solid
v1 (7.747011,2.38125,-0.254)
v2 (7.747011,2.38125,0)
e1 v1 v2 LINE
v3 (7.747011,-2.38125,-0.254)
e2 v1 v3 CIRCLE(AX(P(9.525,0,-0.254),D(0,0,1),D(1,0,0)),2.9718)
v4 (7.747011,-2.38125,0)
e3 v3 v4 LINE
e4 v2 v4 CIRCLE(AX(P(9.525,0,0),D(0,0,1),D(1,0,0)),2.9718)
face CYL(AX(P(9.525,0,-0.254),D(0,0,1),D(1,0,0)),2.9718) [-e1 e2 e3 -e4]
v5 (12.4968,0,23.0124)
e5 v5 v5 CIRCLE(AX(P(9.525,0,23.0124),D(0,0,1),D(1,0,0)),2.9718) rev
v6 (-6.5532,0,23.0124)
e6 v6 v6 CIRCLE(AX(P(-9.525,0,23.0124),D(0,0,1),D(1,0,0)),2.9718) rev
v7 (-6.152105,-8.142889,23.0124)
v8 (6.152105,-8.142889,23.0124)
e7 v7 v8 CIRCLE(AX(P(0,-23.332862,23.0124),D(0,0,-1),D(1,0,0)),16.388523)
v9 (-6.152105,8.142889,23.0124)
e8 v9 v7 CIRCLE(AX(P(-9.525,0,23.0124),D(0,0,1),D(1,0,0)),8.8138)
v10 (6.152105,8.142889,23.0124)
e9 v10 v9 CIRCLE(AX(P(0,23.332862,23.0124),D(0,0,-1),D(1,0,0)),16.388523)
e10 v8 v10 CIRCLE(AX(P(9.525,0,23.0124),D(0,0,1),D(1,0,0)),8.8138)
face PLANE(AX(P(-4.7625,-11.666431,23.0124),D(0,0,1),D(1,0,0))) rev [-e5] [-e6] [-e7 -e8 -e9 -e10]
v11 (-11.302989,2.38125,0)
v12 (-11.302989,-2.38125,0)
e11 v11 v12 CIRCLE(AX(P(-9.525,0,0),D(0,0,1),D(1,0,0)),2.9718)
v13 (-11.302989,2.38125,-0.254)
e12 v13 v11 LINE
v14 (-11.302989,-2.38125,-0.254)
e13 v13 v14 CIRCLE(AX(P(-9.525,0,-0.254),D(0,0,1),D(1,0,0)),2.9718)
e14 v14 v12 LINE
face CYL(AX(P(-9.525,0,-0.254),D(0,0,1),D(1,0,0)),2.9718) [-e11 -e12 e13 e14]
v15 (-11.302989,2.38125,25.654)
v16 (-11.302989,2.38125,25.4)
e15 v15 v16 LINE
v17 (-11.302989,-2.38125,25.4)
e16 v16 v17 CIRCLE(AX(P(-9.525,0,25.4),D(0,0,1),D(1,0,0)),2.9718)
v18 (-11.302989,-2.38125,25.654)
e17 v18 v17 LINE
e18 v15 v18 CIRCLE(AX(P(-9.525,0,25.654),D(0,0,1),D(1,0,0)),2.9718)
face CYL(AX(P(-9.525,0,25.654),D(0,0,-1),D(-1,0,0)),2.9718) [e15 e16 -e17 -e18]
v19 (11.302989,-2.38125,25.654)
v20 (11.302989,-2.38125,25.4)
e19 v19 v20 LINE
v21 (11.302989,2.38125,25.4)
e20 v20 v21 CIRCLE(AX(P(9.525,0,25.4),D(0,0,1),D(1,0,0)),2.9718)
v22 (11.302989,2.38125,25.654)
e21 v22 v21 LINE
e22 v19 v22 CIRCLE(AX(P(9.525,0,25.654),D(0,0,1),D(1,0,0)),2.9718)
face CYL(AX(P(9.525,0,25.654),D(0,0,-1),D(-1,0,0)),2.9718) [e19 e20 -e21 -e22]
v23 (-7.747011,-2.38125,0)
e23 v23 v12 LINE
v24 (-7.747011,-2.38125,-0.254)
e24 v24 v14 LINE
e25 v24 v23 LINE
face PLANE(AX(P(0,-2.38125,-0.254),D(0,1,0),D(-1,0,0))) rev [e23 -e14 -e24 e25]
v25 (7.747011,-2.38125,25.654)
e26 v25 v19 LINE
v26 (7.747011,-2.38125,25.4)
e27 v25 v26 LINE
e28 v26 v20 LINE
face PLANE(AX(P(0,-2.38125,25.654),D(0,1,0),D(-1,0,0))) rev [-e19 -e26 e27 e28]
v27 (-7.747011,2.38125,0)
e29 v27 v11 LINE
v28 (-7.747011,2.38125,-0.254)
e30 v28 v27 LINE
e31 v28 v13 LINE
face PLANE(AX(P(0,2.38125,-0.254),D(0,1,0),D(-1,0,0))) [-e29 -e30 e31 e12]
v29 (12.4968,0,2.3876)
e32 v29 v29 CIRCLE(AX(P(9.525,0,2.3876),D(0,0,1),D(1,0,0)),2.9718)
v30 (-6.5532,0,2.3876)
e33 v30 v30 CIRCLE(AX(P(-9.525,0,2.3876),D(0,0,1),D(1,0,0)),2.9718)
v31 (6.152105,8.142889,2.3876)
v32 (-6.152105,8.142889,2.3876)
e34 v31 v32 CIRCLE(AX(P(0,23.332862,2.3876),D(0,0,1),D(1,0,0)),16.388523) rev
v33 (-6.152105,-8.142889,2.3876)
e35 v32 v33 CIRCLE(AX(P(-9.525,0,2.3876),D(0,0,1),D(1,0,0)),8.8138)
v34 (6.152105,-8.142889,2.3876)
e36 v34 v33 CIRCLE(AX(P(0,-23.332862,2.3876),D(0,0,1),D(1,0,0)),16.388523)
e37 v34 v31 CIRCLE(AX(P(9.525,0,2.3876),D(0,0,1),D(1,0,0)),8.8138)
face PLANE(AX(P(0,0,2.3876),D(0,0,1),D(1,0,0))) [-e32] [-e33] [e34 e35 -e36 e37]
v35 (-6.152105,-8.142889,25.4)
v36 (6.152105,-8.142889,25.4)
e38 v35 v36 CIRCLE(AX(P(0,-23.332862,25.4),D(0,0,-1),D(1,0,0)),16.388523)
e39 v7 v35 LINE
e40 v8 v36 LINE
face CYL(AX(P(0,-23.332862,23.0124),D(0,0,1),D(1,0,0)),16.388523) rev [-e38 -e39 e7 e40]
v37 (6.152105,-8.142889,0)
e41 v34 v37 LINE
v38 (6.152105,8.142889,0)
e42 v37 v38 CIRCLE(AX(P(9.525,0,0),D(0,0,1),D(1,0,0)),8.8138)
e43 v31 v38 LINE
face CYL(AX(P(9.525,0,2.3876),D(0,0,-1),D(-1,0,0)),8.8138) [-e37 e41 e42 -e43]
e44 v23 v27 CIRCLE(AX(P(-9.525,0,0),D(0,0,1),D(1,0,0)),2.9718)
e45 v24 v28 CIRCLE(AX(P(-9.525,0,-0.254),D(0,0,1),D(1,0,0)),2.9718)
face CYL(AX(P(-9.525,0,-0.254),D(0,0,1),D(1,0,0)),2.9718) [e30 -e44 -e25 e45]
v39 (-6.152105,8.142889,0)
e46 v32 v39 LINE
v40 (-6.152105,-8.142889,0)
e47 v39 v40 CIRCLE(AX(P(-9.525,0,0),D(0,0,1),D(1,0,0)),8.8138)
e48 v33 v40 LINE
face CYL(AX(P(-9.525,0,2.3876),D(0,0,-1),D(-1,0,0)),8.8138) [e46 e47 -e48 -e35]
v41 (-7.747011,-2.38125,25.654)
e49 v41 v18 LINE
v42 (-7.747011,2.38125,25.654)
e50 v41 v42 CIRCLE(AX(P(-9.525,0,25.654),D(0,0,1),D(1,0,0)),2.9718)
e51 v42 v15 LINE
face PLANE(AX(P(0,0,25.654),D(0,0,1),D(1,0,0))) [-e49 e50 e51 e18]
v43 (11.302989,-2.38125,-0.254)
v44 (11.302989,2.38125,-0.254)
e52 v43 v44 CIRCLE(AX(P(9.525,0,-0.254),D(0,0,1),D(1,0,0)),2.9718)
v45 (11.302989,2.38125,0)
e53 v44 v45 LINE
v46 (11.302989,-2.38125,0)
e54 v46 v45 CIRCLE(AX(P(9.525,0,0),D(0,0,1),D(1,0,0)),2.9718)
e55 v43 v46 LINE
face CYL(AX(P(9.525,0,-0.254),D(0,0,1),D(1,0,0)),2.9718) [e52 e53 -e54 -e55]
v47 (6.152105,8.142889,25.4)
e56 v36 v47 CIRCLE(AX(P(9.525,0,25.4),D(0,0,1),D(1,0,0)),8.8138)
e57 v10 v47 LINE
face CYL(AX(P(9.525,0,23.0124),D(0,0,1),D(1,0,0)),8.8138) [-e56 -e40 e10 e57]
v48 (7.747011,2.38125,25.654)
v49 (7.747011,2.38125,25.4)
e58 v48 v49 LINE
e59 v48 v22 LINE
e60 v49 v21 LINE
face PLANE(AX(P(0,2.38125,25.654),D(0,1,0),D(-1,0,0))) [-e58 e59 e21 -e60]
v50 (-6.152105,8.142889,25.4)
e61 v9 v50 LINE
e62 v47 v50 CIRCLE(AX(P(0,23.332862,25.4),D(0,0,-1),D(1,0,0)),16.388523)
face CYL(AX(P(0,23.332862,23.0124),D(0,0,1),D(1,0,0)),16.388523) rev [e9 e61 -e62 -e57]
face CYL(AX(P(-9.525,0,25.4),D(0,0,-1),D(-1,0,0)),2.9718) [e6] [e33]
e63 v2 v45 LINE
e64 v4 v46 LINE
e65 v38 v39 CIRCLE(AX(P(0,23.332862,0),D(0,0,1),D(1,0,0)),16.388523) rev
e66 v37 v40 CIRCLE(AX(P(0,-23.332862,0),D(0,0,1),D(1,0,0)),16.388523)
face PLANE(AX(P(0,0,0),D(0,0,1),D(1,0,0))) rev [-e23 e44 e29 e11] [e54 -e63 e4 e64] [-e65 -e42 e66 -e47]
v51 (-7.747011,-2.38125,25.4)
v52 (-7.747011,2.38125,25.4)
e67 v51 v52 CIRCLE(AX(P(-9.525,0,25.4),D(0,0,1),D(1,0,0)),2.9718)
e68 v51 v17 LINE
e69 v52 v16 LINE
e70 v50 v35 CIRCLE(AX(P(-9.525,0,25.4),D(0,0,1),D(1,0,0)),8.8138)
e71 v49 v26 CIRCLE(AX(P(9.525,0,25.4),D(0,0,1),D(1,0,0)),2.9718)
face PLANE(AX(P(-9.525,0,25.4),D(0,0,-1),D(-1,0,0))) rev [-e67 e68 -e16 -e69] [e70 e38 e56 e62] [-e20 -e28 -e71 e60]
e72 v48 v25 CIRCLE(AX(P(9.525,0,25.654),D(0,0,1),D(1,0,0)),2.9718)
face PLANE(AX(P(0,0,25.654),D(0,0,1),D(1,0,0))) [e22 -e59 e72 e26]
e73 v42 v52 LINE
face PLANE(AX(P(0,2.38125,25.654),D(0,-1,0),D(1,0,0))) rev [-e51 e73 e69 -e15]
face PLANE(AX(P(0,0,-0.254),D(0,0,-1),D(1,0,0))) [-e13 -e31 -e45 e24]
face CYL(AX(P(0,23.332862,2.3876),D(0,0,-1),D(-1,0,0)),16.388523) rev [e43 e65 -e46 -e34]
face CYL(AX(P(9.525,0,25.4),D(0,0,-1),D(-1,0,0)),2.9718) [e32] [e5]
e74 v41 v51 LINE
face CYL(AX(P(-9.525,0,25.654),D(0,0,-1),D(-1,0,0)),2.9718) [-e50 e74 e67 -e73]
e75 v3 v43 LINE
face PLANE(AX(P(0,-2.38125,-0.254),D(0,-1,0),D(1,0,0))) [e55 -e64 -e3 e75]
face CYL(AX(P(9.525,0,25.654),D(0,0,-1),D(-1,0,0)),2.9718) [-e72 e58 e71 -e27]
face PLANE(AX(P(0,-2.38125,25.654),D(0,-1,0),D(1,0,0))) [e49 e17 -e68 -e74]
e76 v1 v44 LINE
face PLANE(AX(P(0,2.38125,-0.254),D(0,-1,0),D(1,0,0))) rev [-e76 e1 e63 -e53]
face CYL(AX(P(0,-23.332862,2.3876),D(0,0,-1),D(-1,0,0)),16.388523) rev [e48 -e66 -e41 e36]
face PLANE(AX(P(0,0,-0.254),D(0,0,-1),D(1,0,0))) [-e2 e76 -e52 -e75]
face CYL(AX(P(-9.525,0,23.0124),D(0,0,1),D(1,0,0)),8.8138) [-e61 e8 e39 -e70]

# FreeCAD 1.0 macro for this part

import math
import FreeCAD as App
import Part
import Sketcher
Q = App.Units.Quantity

doc = App.newDocument("Part")
body = doc.addObject("PartDesign::Body", "Body")

# Sketch on XY plane
sketch1 = body.newObject("Sketcher::SketchObject", "Sketch")
sketch1.AttachmentSupport = (doc.getObject("XY_Plane"), [""])
sketch1.MapMode = "FlatFace"
sketch1.addGeometry(Part.ArcOfCircle(Part.Circle(App.Vector(-9.525, 0, 0), App.Vector(0, 0, 1), 8.8138), math.radians(90), math.radians(292.5)), False)
sketch1.addGeometry(Part.ArcOfCircle(Part.Circle(App.Vector(0, -23.332862, 0), App.Vector(0, 0, 1), 16.388523), math.radians(67.951516), math.radians(112.048484)), False)
sketch1.addGeometry(Part.ArcOfCircle(Part.Circle(App.Vector(9.525, 0, 0), App.Vector(0, 0, 1), 8.8138), math.radians(-112.5), math.radians(0)), False)
sketch1.addGeometry(Part.ArcOfCircle(Part.Circle(App.Vector(9.525, 0, 0), App.Vector(0, 0, 1), 8.8138), math.radians(0), math.radians(90)), False)
sketch1.addGeometry(Part.ArcOfCircle(Part.Circle(App.Vector(9.525, 0, 0), App.Vector(0, 0, 1), 8.8138), math.radians(90), math.radians(112.5)), False)
sketch1.addGeometry(Part.ArcOfCircle(Part.Circle(App.Vector(0, 23.332862, 0), App.Vector(0, 0, 1), 16.388523), math.radians(-90), math.radians(-67.951516)), False)
sketch1.addGeometry(Part.ArcOfCircle(Part.Circle(App.Vector(0, 23.332862, 0), App.Vector(0, 0, 1), 16.388523), math.radians(-112.048484), math.radians(-90)), False)
sketch1.addGeometry(Part.ArcOfCircle(Part.Circle(App.Vector(-9.525, 0, 0), App.Vector(0, 0, 1), 8.8138), math.radians(67.5), math.radians(90)), False)
sketch1.addGeometry(Part.Circle(App.Vector(-9.525, 0, 0), App.Vector(0, 0, 1), 2.9718), False)
sketch1.addGeometry(Part.Circle(App.Vector(9.525, 0, 0), App.Vector(0, 0, 1), 2.9718), False)
sketch1.addConstraint(Sketcher.Constraint("Coincident", 0, 2, 1, 2))
sketch1.addConstraint(Sketcher.Constraint("Coincident", 1, 1, 2, 1))
sketch1.addConstraint(Sketcher.Constraint("Tangent", 2, 2, 3, 1))
sketch1.addConstraint(Sketcher.Constraint("Tangent", 3, 2, 4, 1))
sketch1.addConstraint(Sketcher.Constraint("Coincident", 4, 2, 5, 2))
sketch1.addConstraint(Sketcher.Constraint("Tangent", 5, 1, 6, 2))
sketch1.addConstraint(Sketcher.Constraint("Coincident", 6, 1, 7, 1))
sketch1.addConstraint(Sketcher.Constraint("Tangent", 7, 2, 0, 1))
sketch1.addConstraint(Sketcher.Constraint("Coincident", 4, 3, 2, 3))
sketch1.addConstraint(Sketcher.Constraint("Coincident", 8, 3, 0, 3))
sketch1.addConstraint(Sketcher.Constraint("Coincident", 9, 3, 2, 3))
sketch1.addConstraint(Sketcher.Constraint("Equal", 0, 2))
sketch1.addConstraint(Sketcher.Constraint("Equal", 1, 5))
sketch1.addConstraint(Sketcher.Constraint("Equal", 5, 6))
sketch1.addConstraint(Sketcher.Constraint("Equal", 4, 7))
sketch1.addConstraint(Sketcher.Constraint("Equal", 8, 9))
sketch1.addConstraint(Sketcher.Constraint("Symmetric", 0, 3, 2, 3, -1, 1))
sketch1.addConstraint(Sketcher.Constraint("Symmetric", 1, 3, 5, 3, -1, 1))
sketch1.addConstraint(Sketcher.Constraint("Symmetric", 0, 2, 1, 1, -2))
sketch1.addConstraint(Sketcher.Constraint("PointOnObject", 2, 2, -1))
sketch1.addConstraint(Sketcher.Constraint("PointOnObject", 5, 1, -2))
sketch1.addConstraint(Sketcher.Constraint("Vertical", 9, 3, 3, 2))
sketch1.addConstraint(Sketcher.Constraint("Vertical", 8, 3, 7, 2))
sketch1.addConstraint(Sketcher.Constraint("Diameter", 8, Q("0.234 in")))
sketch1.addConstraint(Sketcher.Constraint("Radius", 0, Q("0.347 in")))
sketch1.addConstraint(Sketcher.Constraint("DistanceX", 0, 3, 2, 3, Q("0.75 in")))
sketch1.addConstraint(Sketcher.Constraint("Radius", 1, 16.388523))
sketch1.addConstraint(Sketcher.Constraint("DistanceY", 0, 2, -1, 1, 8.142889))
pad1 = body.newObject("PartDesign::Pad", "Pad")
pad1.Profile = sketch1
pad1.Length = Q("0.094 in")

# Sketch on XY plane
sketch2 = body.newObject("Sketcher::SketchObject", "Sketch001")
sketch2.AttachmentSupport = (doc.getObject("XY_Plane"), [""])
sketch2.MapMode = "FlatFace"
sketch2.addGeometry(Part.Circle(App.Vector(-9.5, 0, 0), App.Vector(0, 0, 1), 3), False)
sketch2.addGeometry(Part.Circle(App.Vector(9.5, 0, 0), App.Vector(0, 0, 1), 3), False)
sketch2.addConstraint(Sketcher.Constraint("Equal", 0, 1))
sketch2.addConstraint(Sketcher.Constraint("Symmetric", 0, 3, 1, 3, -1, 1))
sketch2.addConstraint(Sketcher.Constraint("PointOnObject", 0, 3, -1))
sketch2.addConstraint(Sketcher.Constraint("Diameter", 0, Q("0.234 in")))
sketch2.addConstraint(Sketcher.Constraint("DistanceX", 0, 3, 1, 3, Q("0.75 in")))
pad2 = body.newObject("PartDesign::Pad", "Pad001")
pad2.Profile = sketch2
pad2.Length = Q("1 in")

# Sketch on XY plane
sketch3 = body.newObject("Sketcher::SketchObject", "Sketch002")
sketch3.AttachmentSupport = (doc.getObject("XY_Plane"), [""])
sketch3.MapMode = "FlatFace"
sketch3.AttachmentOffset = App.Placement(App.Vector(0, 0, 0.906 * 25.4), App.Rotation())
sketch3.addGeometry(Part.ArcOfCircle(Part.Circle(App.Vector(10, 0, 0), App.Vector(0, 0, 1), 9), math.radians(-112), math.radians(112)), False)
sketch3.addGeometry(Part.ArcOfCircle(Part.Circle(App.Vector(0, 23, 0), App.Vector(0, 0, 1), 16), math.radians(-112), math.radians(-68)), False)
sketch3.addGeometry(Part.ArcOfCircle(Part.Circle(App.Vector(-10, 0, 0), App.Vector(0, 0, 1), 9), math.radians(68), math.radians(292)), False)
sketch3.addGeometry(Part.ArcOfCircle(Part.Circle(App.Vector(0, -23, 0), App.Vector(0, 0, 1), 16), math.radians(68), math.radians(112)), False)
sketch3.addConstraint(Sketcher.Constraint("Coincident", 0, 2, 1, 2))
sketch3.addConstraint(Sketcher.Constraint("Coincident", 1, 1, 2, 1))
sketch3.addConstraint(Sketcher.Constraint("Coincident", 2, 2, 3, 2))
sketch3.addConstraint(Sketcher.Constraint("Coincident", 3, 1, 0, 1))
sketch3.addConstraint(Sketcher.Constraint("Equal", 0, 2))
sketch3.addConstraint(Sketcher.Constraint("Equal", 1, 3))
sketch3.addConstraint(Sketcher.Constraint("Symmetric", 0, 3, 2, 3, -1, 1))
sketch3.addConstraint(Sketcher.Constraint("Symmetric", 1, 3, 3, 3, -1, 1))
sketch3.addConstraint(Sketcher.Constraint("Symmetric", 0, 2, 1, 1, -2))
sketch3.addConstraint(Sketcher.Constraint("Radius", 0, Q("0.347 in")))
sketch3.addConstraint(Sketcher.Constraint("DistanceX", 2, 3, 0, 3, Q("0.75 in")))
sketch3.addConstraint(Sketcher.Constraint("Radius", 1, 16.388523))
sketch3.addConstraint(Sketcher.Constraint("DistanceY", -1, 1, 0, 2, 8.142889))
pad3 = body.newObject("PartDesign::Pad", "Pad002")
pad3.Profile = sketch3
pad3.Length = Q("0.094 in")

# Sketch on XY plane
sketch4 = body.newObject("Sketcher::SketchObject", "Sketch003")
sketch4.AttachmentSupport = (doc.getObject("XY_Plane"), [""])
sketch4.MapMode = "FlatFace"
sketch4.AttachmentOffset = App.Placement(App.Vector(0, 0, 1 * 25.4), App.Rotation())
sketch4.addGeometry(Part.LineSegment(App.Vector(-11.3, -2.4, 0), App.Vector(-7.7, -2.4, 0)), False)
sketch4.addGeometry(Part.ArcOfCircle(Part.Circle(App.Vector(-9.5, 0, 0), App.Vector(0, 0, 1), 3), math.radians(-53), math.radians(0)), False)
sketch4.addGeometry(Part.ArcOfCircle(Part.Circle(App.Vector(-9.5, 0, 0), App.Vector(0, 0, 1), 3), math.radians(0), math.radians(53)), False)
sketch4.addGeometry(Part.LineSegment(App.Vector(-7.7, 2.4, 0), App.Vector(-11.3, 2.4, 0)), False)
sketch4.addGeometry(Part.ArcOfCircle(Part.Circle(App.Vector(-9.5, 0, 0), App.Vector(0, 0, 1), 3), math.radians(127), math.radians(233)), False)
sketch4.addGeometry(Part.ArcOfCircle(Part.Circle(App.Vector(9.5, 0, 0), App.Vector(0, 0, 1), 3), math.radians(127), math.radians(233)), False)
sketch4.addGeometry(Part.LineSegment(App.Vector(7.7, -2.4, 0), App.Vector(11.3, -2.4, 0)), False)
sketch4.addGeometry(Part.ArcOfCircle(Part.Circle(App.Vector(9.5, 0, 0), App.Vector(0, 0, 1), 3), math.radians(-53), math.radians(0)), False)
sketch4.addGeometry(Part.ArcOfCircle(Part.Circle(App.Vector(9.5, 0, 0), App.Vector(0, 0, 1), 3), math.radians(0), math.radians(53)), False)
sketch4.addGeometry(Part.LineSegment(App.Vector(11.3, 2.4, 0), App.Vector(7.7, 2.4, 0)), False)
sketch4.addConstraint(Sketcher.Constraint("Coincident", 0, 2, 1, 1))
sketch4.addConstraint(Sketcher.Constraint("Tangent", 1, 2, 2, 1))
sketch4.addConstraint(Sketcher.Constraint("Coincident", 2, 2, 3, 1))
sketch4.addConstraint(Sketcher.Constraint("Coincident", 3, 2, 4, 1))
sketch4.addConstraint(Sketcher.Constraint("Coincident", 4, 2, 0, 1))
sketch4.addConstraint(Sketcher.Constraint("Coincident", 5, 2, 6, 1))
sketch4.addConstraint(Sketcher.Constraint("Coincident", 6, 2, 7, 1))
sketch4.addConstraint(Sketcher.Constraint("Tangent", 7, 2, 8, 1))
sketch4.addConstraint(Sketcher.Constraint("Coincident", 8, 2, 9, 1))
sketch4.addConstraint(Sketcher.Constraint("Coincident", 9, 2, 5, 1))
sketch4.addConstraint(Sketcher.Constraint("Horizontal", 0))
sketch4.addConstraint(Sketcher.Constraint("Horizontal", 3))
sketch4.addConstraint(Sketcher.Constraint("Horizontal", 6))
sketch4.addConstraint(Sketcher.Constraint("Horizontal", 9))
sketch4.addConstraint(Sketcher.Constraint("Coincident", 4, 3, 1, 3))
sketch4.addConstraint(Sketcher.Constraint("Coincident", 7, 3, 5, 3))
sketch4.addConstraint(Sketcher.Constraint("Equal", 1, 2))
sketch4.addConstraint(Sketcher.Constraint("Equal", 2, 4))
sketch4.addConstraint(Sketcher.Constraint("Equal", 4, 5))
sketch4.addConstraint(Sketcher.Constraint("Equal", 5, 7))
sketch4.addConstraint(Sketcher.Constraint("Equal", 7, 8))
sketch4.addConstraint(Sketcher.Constraint("Symmetric", 1, 3, 5, 3, -1, 1))
sketch4.addConstraint(Sketcher.Constraint("Symmetric", 0, 2, 5, 2, -2))
sketch4.addConstraint(Sketcher.Constraint("PointOnObject", 1, 2, -1))
sketch4.addConstraint(Sketcher.Constraint("PointOnObject", 7, 2, -1))
sketch4.addConstraint(Sketcher.Constraint("Horizontal", 3, 2, 8, 2))
sketch4.addConstraint(Sketcher.Constraint("Vertical", 0, 2, 2, 2))
sketch4.addConstraint(Sketcher.Constraint("Radius", 1, Q("0.117 in")))
sketch4.addConstraint(Sketcher.Constraint("DistanceX", 4, 3, 5, 3, Q("0.75 in")))
sketch4.addConstraint(Sketcher.Constraint("DistanceY", 0, 2, -1, 1, Q("0.09375 in")))
pad4 = body.newObject("PartDesign::Pad", "Pad003")
pad4.Profile = sketch4
pad4.Length = Q("0.01 in")
doc.recompute()

datumplane = body.newObject("PartDesign::Plane", "DatumPlane")
datumplane.AttachmentSupport = (doc.getObject("XY_Plane"), [""])
datumplane.MapMode = "FlatFace"
datumplane.AttachmentOffset = App.Placement(App.Vector(0, 0, 0.5 * 25.4), App.Rotation())
mirrored = body.newObject("PartDesign::Mirrored", "Mirrored")
mirrored.Originals = [pad4]
mirrored.MirrorPlane = (datumplane, [""])
body.Tip = mirrored

doc.recompute()
